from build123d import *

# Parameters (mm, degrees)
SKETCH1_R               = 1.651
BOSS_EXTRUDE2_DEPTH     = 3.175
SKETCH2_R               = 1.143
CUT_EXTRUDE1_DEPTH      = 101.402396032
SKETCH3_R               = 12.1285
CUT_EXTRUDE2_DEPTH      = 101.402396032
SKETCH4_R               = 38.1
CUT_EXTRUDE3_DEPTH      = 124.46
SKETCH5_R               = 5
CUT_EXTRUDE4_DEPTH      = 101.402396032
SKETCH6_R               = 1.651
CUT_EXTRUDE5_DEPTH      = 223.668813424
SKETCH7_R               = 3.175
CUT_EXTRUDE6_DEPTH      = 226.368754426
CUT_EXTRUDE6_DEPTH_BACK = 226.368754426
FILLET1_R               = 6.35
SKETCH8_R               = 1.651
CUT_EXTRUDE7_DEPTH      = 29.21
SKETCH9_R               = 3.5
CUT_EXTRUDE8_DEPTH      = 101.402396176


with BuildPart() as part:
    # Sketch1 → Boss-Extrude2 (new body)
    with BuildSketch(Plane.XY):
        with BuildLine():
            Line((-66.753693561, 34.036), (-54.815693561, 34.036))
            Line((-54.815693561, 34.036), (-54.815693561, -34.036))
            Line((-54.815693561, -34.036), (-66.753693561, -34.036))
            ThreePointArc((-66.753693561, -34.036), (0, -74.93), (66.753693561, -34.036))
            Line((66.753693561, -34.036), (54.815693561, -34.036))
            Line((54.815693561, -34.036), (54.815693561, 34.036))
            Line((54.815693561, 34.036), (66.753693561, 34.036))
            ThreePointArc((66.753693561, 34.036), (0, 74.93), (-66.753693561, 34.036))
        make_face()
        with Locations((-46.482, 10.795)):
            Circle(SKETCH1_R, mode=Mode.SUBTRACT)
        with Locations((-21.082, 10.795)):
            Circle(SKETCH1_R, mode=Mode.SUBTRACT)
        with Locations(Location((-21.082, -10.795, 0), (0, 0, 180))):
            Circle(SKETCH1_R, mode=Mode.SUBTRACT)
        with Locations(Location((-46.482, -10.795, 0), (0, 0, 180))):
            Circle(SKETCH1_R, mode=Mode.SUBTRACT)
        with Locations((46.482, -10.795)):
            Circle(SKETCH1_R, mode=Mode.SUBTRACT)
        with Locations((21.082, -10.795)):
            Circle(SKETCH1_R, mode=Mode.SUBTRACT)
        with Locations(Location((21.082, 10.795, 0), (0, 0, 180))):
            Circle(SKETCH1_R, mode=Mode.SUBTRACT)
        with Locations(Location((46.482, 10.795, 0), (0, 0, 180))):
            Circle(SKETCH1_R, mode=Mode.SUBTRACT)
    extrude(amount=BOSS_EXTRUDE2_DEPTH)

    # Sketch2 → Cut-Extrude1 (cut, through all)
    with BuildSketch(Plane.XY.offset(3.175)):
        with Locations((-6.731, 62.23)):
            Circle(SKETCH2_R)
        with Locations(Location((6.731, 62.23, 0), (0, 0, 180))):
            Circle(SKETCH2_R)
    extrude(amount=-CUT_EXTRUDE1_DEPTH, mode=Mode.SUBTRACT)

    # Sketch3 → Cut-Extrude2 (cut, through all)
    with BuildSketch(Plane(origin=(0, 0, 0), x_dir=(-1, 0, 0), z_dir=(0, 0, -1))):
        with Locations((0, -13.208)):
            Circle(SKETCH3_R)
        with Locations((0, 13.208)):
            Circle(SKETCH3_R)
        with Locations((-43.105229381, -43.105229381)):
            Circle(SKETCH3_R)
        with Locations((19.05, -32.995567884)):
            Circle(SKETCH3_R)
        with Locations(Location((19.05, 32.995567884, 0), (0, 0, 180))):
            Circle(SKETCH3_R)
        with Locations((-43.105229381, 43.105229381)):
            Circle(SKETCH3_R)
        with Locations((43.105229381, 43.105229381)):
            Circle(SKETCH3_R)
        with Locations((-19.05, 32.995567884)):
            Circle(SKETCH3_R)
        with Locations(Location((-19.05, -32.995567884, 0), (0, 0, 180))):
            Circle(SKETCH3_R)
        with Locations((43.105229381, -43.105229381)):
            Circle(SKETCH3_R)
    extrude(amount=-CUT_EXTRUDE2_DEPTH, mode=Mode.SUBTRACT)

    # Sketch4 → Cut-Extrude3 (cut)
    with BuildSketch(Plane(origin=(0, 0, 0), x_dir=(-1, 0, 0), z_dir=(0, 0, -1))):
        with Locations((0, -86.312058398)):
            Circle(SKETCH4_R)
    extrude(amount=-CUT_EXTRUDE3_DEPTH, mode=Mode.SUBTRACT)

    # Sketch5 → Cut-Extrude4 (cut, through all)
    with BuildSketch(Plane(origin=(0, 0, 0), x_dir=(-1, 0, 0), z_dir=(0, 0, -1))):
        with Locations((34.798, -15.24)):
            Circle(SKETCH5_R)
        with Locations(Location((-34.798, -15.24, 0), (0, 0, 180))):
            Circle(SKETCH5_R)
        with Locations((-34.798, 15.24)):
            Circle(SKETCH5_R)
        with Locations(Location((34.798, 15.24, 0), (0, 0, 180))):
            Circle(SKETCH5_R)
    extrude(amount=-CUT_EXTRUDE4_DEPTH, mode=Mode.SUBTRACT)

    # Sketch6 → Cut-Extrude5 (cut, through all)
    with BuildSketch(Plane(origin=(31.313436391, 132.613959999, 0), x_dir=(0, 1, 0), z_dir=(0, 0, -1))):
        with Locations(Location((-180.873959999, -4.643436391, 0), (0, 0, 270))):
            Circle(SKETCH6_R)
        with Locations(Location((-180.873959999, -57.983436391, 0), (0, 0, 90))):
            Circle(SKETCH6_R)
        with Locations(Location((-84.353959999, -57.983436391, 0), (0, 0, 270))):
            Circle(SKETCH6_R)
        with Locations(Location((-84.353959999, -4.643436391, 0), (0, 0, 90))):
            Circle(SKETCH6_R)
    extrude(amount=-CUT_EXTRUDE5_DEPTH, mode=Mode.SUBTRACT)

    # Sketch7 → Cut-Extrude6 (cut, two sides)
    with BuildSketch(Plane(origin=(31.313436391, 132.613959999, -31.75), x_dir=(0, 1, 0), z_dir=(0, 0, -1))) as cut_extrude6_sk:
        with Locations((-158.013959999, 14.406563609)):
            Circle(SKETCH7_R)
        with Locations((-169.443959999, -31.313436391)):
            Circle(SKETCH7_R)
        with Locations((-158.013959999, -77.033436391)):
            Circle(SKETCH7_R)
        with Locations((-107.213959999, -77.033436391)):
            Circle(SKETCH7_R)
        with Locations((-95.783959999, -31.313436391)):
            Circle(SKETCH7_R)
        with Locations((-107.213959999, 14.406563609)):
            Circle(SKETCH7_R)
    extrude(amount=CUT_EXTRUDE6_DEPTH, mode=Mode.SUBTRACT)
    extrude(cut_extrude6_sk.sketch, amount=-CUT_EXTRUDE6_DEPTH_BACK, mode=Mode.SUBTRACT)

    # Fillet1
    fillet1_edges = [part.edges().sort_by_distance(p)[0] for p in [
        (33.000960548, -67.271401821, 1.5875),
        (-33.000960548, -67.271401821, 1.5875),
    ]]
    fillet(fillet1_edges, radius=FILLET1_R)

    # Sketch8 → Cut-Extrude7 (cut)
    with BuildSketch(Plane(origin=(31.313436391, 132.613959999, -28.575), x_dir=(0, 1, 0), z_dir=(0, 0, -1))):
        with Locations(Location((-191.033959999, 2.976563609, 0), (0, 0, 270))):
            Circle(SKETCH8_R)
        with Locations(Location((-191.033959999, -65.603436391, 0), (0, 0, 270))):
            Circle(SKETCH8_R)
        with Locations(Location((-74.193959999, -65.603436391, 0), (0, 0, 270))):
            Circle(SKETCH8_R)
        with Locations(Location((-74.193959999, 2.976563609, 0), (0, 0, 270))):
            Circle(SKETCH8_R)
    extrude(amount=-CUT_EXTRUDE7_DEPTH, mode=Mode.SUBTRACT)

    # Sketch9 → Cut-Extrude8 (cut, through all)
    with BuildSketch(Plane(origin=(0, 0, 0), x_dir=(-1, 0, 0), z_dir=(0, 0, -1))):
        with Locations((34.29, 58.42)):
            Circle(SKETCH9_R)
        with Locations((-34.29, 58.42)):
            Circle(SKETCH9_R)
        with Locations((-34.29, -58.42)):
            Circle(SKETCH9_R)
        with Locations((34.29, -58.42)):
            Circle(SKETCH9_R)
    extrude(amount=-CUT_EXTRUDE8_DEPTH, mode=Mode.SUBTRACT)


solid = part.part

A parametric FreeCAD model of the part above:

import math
import FreeCAD as App
import Part
import Sketcher
Q = App.Units.Quantity


def edges_at(feature, points):
    """Names of the edges that pass closest to the given points."""
    edges = feature.Shape.Edges
    near = lambda p: min(range(len(edges)), key=lambda i: edges[i].distToShape(Part.Vertex(*p))[0])
    return sorted({f"Edge{near(p) + 1}" for p in points})

doc = App.newDocument("Part")
body = doc.addObject("PartDesign::Body", "Body")

# Sketch on XY plane
sketch1 = body.newObject("Sketcher::SketchObject", "Sketch")
sketch1.AttachmentSupport = (doc.getObject("XY_Plane"), [""])
sketch1.MapMode = "FlatFace"
sketch1.addGeometry([
    Part.LineSegment(App.Vector(-66.8, 34, 0), App.Vector(-54.8, 34, 0)),  # 0
    Part.LineSegment(App.Vector(-54.8, 34, 0), App.Vector(-54.8, -34, 0)),  # 1
    Part.LineSegment(App.Vector(-54.8, -34, 0), App.Vector(-66.8, -34, 0)),  # 2
    Part.ArcOfCircle(Part.Circle(App.Vector(0, 0, 0), App.Vector(0, 0, 1), 74.9), math.radians(-153), math.radians(-27)),  # 3
    Part.LineSegment(App.Vector(66.8, -34, 0), App.Vector(54.8, -34, 0)),  # 4
    Part.LineSegment(App.Vector(54.8, -34, 0), App.Vector(54.8, 34, 0)),  # 5
    Part.LineSegment(App.Vector(54.8, 34, 0), App.Vector(66.8, 34, 0)),  # 6
    Part.ArcOfCircle(Part.Circle(App.Vector(0, 0, 0), App.Vector(0, 0, 1), 74.9), math.radians(27), math.radians(153)),  # 7
    Part.Circle(App.Vector(-46.5, -10.8, 0), App.Vector(0, 0, 1), 1.7),  # 8
    Part.Circle(App.Vector(-21.1, -10.8, 0), App.Vector(0, 0, 1), 1.7),  # 9
    Part.Circle(App.Vector(21.1, -10.8, 0), App.Vector(0, 0, 1), 1.7),  # 10
    Part.Circle(App.Vector(46.5, -10.8, 0), App.Vector(0, 0, 1), 1.7),  # 11
    Part.Circle(App.Vector(-46.5, 10.8, 0), App.Vector(0, 0, 1), 1.7),  # 12
    Part.Circle(App.Vector(-21.1, 10.8, 0), App.Vector(0, 0, 1), 1.7),  # 13
    Part.Circle(App.Vector(21.1, 10.8, 0), App.Vector(0, 0, 1), 1.7),  # 14
    Part.Circle(App.Vector(46.5, 10.8, 0), App.Vector(0, 0, 1), 1.7),  # 15
], False)
sketch1.addConstraint([
    Sketcher.Constraint("Coincident", 0, 2, 1, 1),
    Sketcher.Constraint("Coincident", 1, 2, 2, 1),
    Sketcher.Constraint("Coincident", 2, 2, 3, 1),
    Sketcher.Constraint("Coincident", 3, 2, 4, 1),
    Sketcher.Constraint("Coincident", 4, 2, 5, 1),
    Sketcher.Constraint("Coincident", 5, 2, 6, 1),
    Sketcher.Constraint("Coincident", 6, 2, 7, 1),
    Sketcher.Constraint("Coincident", 7, 2, 0, 1),
    Sketcher.Constraint("Horizontal", 0),
    Sketcher.Constraint("Vertical", 1),
    Sketcher.Constraint("Horizontal", 2),
    Sketcher.Constraint("Horizontal", 4),
    Sketcher.Constraint("Vertical", 5),
    Sketcher.Constraint("Horizontal", 6),
    Sketcher.Constraint("Coincident", 3, 3, -1, 1),
    Sketcher.Constraint("Coincident", 7, 3, -1, 1),
    Sketcher.Constraint("Equal", 3, 7),
    Sketcher.Constraint("Equal", 8, 9),
    Sketcher.Constraint("Equal", 9, 10),
    Sketcher.Constraint("Equal", 10, 11),
    Sketcher.Constraint("Equal", 11, 12),
    Sketcher.Constraint("Equal", 12, 13),
    Sketcher.Constraint("Equal", 13, 14),
    Sketcher.Constraint("Equal", 14, 15),
    Sketcher.Constraint("Symmetric", 11, 3, 12, 3, -1, 1),
    Sketcher.Constraint("Symmetric", 10, 3, 13, 3, -1, 1),
    Sketcher.Constraint("Symmetric", 9, 3, 14, 3, -1, 1),
    Sketcher.Constraint("Symmetric", 8, 3, 15, 3, -1, 1),
    Sketcher.Constraint("Symmetric", 0, 2, 4, 2, -1, 1),
    Sketcher.Constraint("Symmetric", 9, 3, 10, 3, -2),
    Sketcher.Constraint("Symmetric", 8, 3, 11, 3, -2),
    Sketcher.Constraint("Horizontal", 8, 3, 9, 3),
    Sketcher.Constraint("Horizontal", 2, 2, 3, 2),
    Sketcher.Constraint("Horizontal", 0, 2, 5, 2),
    Sketcher.Constraint("Diameter", 8, Q("0.13 in")),
    Sketcher.Constraint("Radius", 3, Q("2.95 in")),
    Sketcher.Constraint("DistanceX", 8, 3, 9, 3, Q("1 in")),
    Sketcher.Constraint("DistanceX", 0, 1, 0, 2, Q("0.47 in")),
    Sketcher.Constraint("DistanceY", 1, 2, 1, 1, Q("2.68 in")),
    Sketcher.Constraint("DistanceX", 8, 3, -1, 1, Q("1.83 in")),
    Sketcher.Constraint("DistanceY", 8, 3, 12, 3, Q("0.85 in")),
])
pad1 = body.newObject("PartDesign::Pad", "Pad")
pad1.Profile = sketch1
pad1.Length = Q("0.125 in")

# Sketch on XY plane
sketch2 = body.newObject("Sketcher::SketchObject", "Sketch001")
sketch2.AttachmentSupport = (doc.getObject("XY_Plane"), [""])
sketch2.MapMode = "FlatFace"
sketch2.AttachmentOffset = App.Placement(App.Vector(0, 0, 0.125 * 25.4), App.Rotation())
sketch2.addGeometry([
    Part.Circle(App.Vector(-6.7, 62.2, 0), App.Vector(0, 0, 1), 1.1),
    Part.Circle(App.Vector(6.7, 62.2, 0), App.Vector(0, 0, 1), 1.1),
], False)
sketch2.addConstraint([
    Sketcher.Constraint("Equal", 0, 1),
    Sketcher.Constraint("Symmetric", 0, 3, 1, 3, -2),
    Sketcher.Constraint("Diameter", 0, Q("0.09 in")),
    Sketcher.Constraint("DistanceY", -1, 1, 0, 3, Q("2.45 in")),
    Sketcher.Constraint("DistanceX", 0, 3, 1, 3, Q("0.53 in")),
])
pocket1 = body.newObject("PartDesign::Pocket", "Pocket")
pocket1.Profile = sketch2
pocket1.Type = "ThroughAll"

# Sketch on XY plane
sketch3 = body.newObject("Sketcher::SketchObject", "Sketch002")
sketch3.AttachmentSupport = (doc.getObject("XY_Plane"), [""])
sketch3.MapMode = "FlatFace"
sketch3.addGeometry([
    Part.Circle(App.Vector(0, -13, 0), App.Vector(0, 0, 1), 12),  # 0
    Part.Circle(App.Vector(0, 13, 0), App.Vector(0, 0, 1), 12),  # 1
    Part.Circle(App.Vector(43, -43, 0), App.Vector(0, 0, 1), 12),  # 2
    Part.Circle(App.Vector(-19, -33, 0), App.Vector(0, 0, 1), 12),  # 3
    Part.Circle(App.Vector(-19, 33, 0), App.Vector(0, 0, 1), 12),  # 4
    Part.Circle(App.Vector(43, 43, 0), App.Vector(0, 0, 1), 12),  # 5
    Part.Circle(App.Vector(-43, 43, 0), App.Vector(0, 0, 1), 12),  # 6
    Part.Circle(App.Vector(19, 33, 0), App.Vector(0, 0, 1), 12),  # 7
    Part.Circle(App.Vector(19, -33, 0), App.Vector(0, 0, 1), 12),  # 8
    Part.Circle(App.Vector(-43, -43, 0), App.Vector(0, 0, 1), 12),  # 9
], False)
sketch3.addConstraint([
    Sketcher.Constraint("Equal", 0, 1),
    Sketcher.Constraint("Equal", 1, 2),
    Sketcher.Constraint("Equal", 2, 3),
    Sketcher.Constraint("Equal", 3, 4),
    Sketcher.Constraint("Equal", 4, 5),
    Sketcher.Constraint("Equal", 5, 6),
    Sketcher.Constraint("Equal", 6, 7),
    Sketcher.Constraint("Equal", 7, 8),
    Sketcher.Constraint("Equal", 8, 9),
    Sketcher.Constraint("Symmetric", 0, 3, 1, 3, -1, 1),
    Sketcher.Constraint("Symmetric", 2, 3, 6, 3, -1, 1),
    Sketcher.Constraint("Symmetric", 3, 3, 7, 3, -1, 1),
    Sketcher.Constraint("Symmetric", 4, 3, 8, 3, -1, 1),
    Sketcher.Constraint("Symmetric", 5, 3, 9, 3, -1, 1),
    Sketcher.Constraint("Symmetric", 5, 3, 6, 3, -2),
    Sketcher.Constraint("Symmetric", 4, 3, 7, 3, -2),
    Sketcher.Constraint("PointOnObject", 0, 3, -2),
    Sketcher.Constraint("Diameter", 0, Q("0.955 in")),
    Sketcher.Constraint("DistanceX", 4, 3, 7, 3, Q("1.5 in")),
    Sketcher.Constraint("DistanceY", 0, 3, -1, 1, Q("0.52 in")),
    Sketcher.Constraint("DistanceX", -1, 1, 2, 3, 43.105229),
    Sketcher.Constraint("DistanceY", 2, 3, -1, 1, 43.105229),
    Sketcher.Constraint("DistanceY", 2, 3, 3, 3, 10.109661),
])
pocket2 = body.newObject("PartDesign::Pocket", "Pocket001")
pocket2.Profile = sketch3
pocket2.Type = "ThroughAll"
pocket2.Reversed = True

# Sketch on XY plane
sketch4 = body.newObject("Sketcher::SketchObject", "Sketch003")
sketch4.AttachmentSupport = (doc.getObject("XY_Plane"), [""])
sketch4.MapMode = "FlatFace"
sketch4.addGeometry(Part.Circle(App.Vector(0, -86, 0), App.Vector(0, 0, 1), 38), False)
sketch4.addConstraint([
    Sketcher.Constraint("PointOnObject", 0, 3, -2),
    Sketcher.Constraint("Diameter", 0, Q("3 in")),
    Sketcher.Constraint("DistanceY", 0, 3, -1, 1, 86.312058),
])
pocket3 = body.newObject("PartDesign::Pocket", "Pocket002")
pocket3.Profile = sketch4
pocket3.Length = Q("4.9 in")
pocket3.Reversed = True

# Sketch on XY plane
sketch5 = body.newObject("Sketcher::SketchObject", "Sketch004")
sketch5.AttachmentSupport = (doc.getObject("XY_Plane"), [""])
sketch5.MapMode = "FlatFace"
sketch5.addGeometry([
    Part.Circle(App.Vector(-35, -15, 0), App.Vector(0, 0, 1), 5),
    Part.Circle(App.Vector(35, -15, 0), App.Vector(0, 0, 1), 5),
    Part.Circle(App.Vector(35, 15, 0), App.Vector(0, 0, 1), 5),
    Part.Circle(App.Vector(-35, 15, 0), App.Vector(0, 0, 1), 5),
], False)
sketch5.addConstraint([
    Sketcher.Constraint("Equal", 0, 1),
    Sketcher.Constraint("Equal", 1, 2),
    Sketcher.Constraint("Equal", 2, 3),
    Sketcher.Constraint("Symmetric", 0, 3, 2, 3, -1, 1),
    Sketcher.Constraint("Symmetric", 1, 3, 3, 3, -1, 1),
    Sketcher.Constraint("Symmetric", 0, 3, 1, 3, -2),
    Sketcher.Constraint("DistanceY", 0, 3, -1, 1, Q("0.6 in")),
    Sketcher.Constraint("Diameter", 0, 10.0),
    Sketcher.Constraint("DistanceX", 0, 3, -1, 1, Q("1.37 in")),
])
pocket4 = body.newObject("PartDesign::Pocket", "Pocket003")
pocket4.Profile = sketch5
pocket4.Type = "ThroughAll"
pocket4.Reversed = True

# Sketch on XY plane
sketch6 = body.newObject("Sketcher::SketchObject", "Sketch005")
sketch6.AttachmentSupport = (doc.getObject("XY_Plane"), [""])
sketch6.MapMode = "FlatFace"
sketch6.addGeometry([
    Part.Circle(App.Vector(26.7, -48.3, 0), App.Vector(0, 0, 1), 1.7),
    Part.Circle(App.Vector(-26.7, -48.3, 0), App.Vector(0, 0, 1), 1.7),
    Part.Circle(App.Vector(-26.7, 48.3, 0), App.Vector(0, 0, 1), 1.7),
    Part.Circle(App.Vector(26.7, 48.3, 0), App.Vector(0, 0, 1), 1.7),
], False)
sketch6.addConstraint([
    Sketcher.Constraint("Equal", 0, 1),
    Sketcher.Constraint("Equal", 1, 2),
    Sketcher.Constraint("Equal", 2, 3),
    Sketcher.Constraint("Symmetric", 0, 3, 2, 3, -1, 1),
    Sketcher.Constraint("Symmetric", 1, 3, 3, 3, -1, 1),
    Sketcher.Constraint("Symmetric", 0, 3, 1, 3, -2),
    Sketcher.Constraint("Diameter", 0, Q("0.13 in")),
    Sketcher.Constraint("DistanceY", 0, 3, -1, 1, Q("1.9 in")),
    Sketcher.Constraint("DistanceX", 1, 3, 0, 3, Q("2.1 in")),
])
pocket5 = body.newObject("PartDesign::Pocket", "Pocket004")
pocket5.Profile = sketch6
pocket5.Type = "ThroughAll"
pocket5.Reversed = True

# Sketch on XY plane
sketch7 = body.newObject("Sketcher::SketchObject", "Sketch006")
sketch7.AttachmentSupport = (doc.getObject("XY_Plane"), [""])
sketch7.MapMode = "FlatFace"
sketch7.AttachmentOffset = App.Placement(App.Vector(0, 0, -1.25 * 25.4), App.Rotation())
sketch7.addGeometry([
    Part.Circle(App.Vector(45.7, -25.4, 0), App.Vector(0, 0, 1), 3.2),  # 0
    Part.Circle(App.Vector(0, -36.8, 0), App.Vector(0, 0, 1), 3.2),  # 1
    Part.Circle(App.Vector(-45.7, -25.4, 0), App.Vector(0, 0, 1), 3.2),  # 2
    Part.Circle(App.Vector(-45.7, 25.4, 0), App.Vector(0, 0, 1), 3.2),  # 3
    Part.Circle(App.Vector(0, 36.8, 0), App.Vector(0, 0, 1), 3.2),  # 4
    Part.Circle(App.Vector(45.7, 25.4, 0), App.Vector(0, 0, 1), 3.2),  # 5
], False)
sketch7.addConstraint([
    Sketcher.Constraint("Equal", 0, 1),
    Sketcher.Constraint("Equal", 1, 2),
    Sketcher.Constraint("Equal", 2, 3),
    Sketcher.Constraint("Equal", 3, 4),
    Sketcher.Constraint("Equal", 4, 5),
    Sketcher.Constraint("Symmetric", 0, 3, 3, 3, -1, 1),
    Sketcher.Constraint("Symmetric", 1, 3, 4, 3, -1, 1),
    Sketcher.Constraint("Symmetric", 2, 3, 5, 3, -1, 1),
    Sketcher.Constraint("Symmetric", 0, 3, 2, 3, -2),
    Sketcher.Constraint("PointOnObject", 1, 3, -2),
    Sketcher.Constraint("Diameter", 0, Q("0.25 in")),
    Sketcher.Constraint("DistanceY", 0, 3, -1, 1, Q("1 in")),
    Sketcher.Constraint("DistanceX", -1, 1, 0, 3, Q("1.8 in")),
    Sketcher.Constraint("DistanceY", 1, 3, 4, 3, Q("2.9 in")),
])
pocket6 = body.newObject("PartDesign::Pocket", "Pocket005")
pocket6.Profile = sketch7
pocket6.Type = "ThroughAll"
pocket6.Midplane = True
doc.recompute()

fillet = body.newObject("PartDesign::Fillet", "Fillet")
fillet.Base = (pocket6, edges_at(pocket6, [(33.001, -67.271, 1.587), (-33.001, -67.271, 1.587)]))
fillet.Radius = Q("0.25 in")

# Sketch on XY plane
sketch8 = body.newObject("Sketcher::SketchObject", "Sketch007")
sketch8.AttachmentSupport = (doc.getObject("XY_Plane"), [""])
sketch8.MapMode = "FlatFace"
sketch8.AttachmentOffset = App.Placement(App.Vector(0, 0, -1.125 * 25.4), App.Rotation())
sketch8.addGeometry([
    Part.Circle(App.Vector(34.3, -58.4, 0), App.Vector(0, 0, 1), 1.7),
    Part.Circle(App.Vector(-34.3, -58.4, 0), App.Vector(0, 0, 1), 1.7),
    Part.Circle(App.Vector(-34.3, 58.4, 0), App.Vector(0, 0, 1), 1.7),
    Part.Circle(App.Vector(34.3, 58.4, 0), App.Vector(0, 0, 1), 1.7),
], False)
sketch8.addConstraint([
    Sketcher.Constraint("Equal", 0, 1),
    Sketcher.Constraint("Equal", 1, 2),
    Sketcher.Constraint("Equal", 2, 3),
    Sketcher.Constraint("Symmetric", 0, 3, 2, 3, -1, 1),
    Sketcher.Constraint("Symmetric", 1, 3, 3, 3, -1, 1),
    Sketcher.Constraint("Symmetric", 0, 3, 1, 3, -2),
    Sketcher.Constraint("Diameter", 0, Q("0.13 in")),
    Sketcher.Constraint("DistanceY", 0, 3, -1, 1, Q("2.3 in")),
    Sketcher.Constraint("DistanceX", 1, 3, 0, 3, Q("2.7 in")),
])
pocket7 = body.newObject("PartDesign::Pocket", "Pocket006")
pocket7.Profile = sketch8
pocket7.Length = Q("1.15 in")
pocket7.Reversed = True

# Sketch on XY plane
sketch9 = body.newObject("Sketcher::SketchObject", "Sketch008")
sketch9.AttachmentSupport = (doc.getObject("XY_Plane"), [""])
sketch9.MapMode = "FlatFace"
sketch9.addGeometry([
    Part.Circle(App.Vector(-34.3, 58.4, 0), App.Vector(0, 0, 1), 3.5),
    Part.Circle(App.Vector(34.3, 58.4, 0), App.Vector(0, 0, 1), 3.5),
    Part.Circle(App.Vector(34.3, -58.4, 0), App.Vector(0, 0, 1), 3.5),
    Part.Circle(App.Vector(-34.3, -58.4, 0), App.Vector(0, 0, 1), 3.5),
], False)
sketch9.addConstraint([
    Sketcher.Constraint("Equal", 0, 1),
    Sketcher.Constraint("Equal", 1, 2),
    Sketcher.Constraint("Equal", 2, 3),
    Sketcher.Constraint("Symmetric", 0, 3, 2, 3, -1, 1),
    Sketcher.Constraint("Symmetric", 1, 3, 3, 3, -1, 1),
    Sketcher.Constraint("Symmetric", 0, 3, 1, 3, -2),
    Sketcher.Constraint("DistanceY", -1, 1, 0, 3, Q("2.3 in")),
    Sketcher.Constraint("DistanceX", 0, 3, 1, 3, Q("2.7 in")),
    Sketcher.Constraint("Diameter", 0, 7.0),
])
pocket8 = body.newObject("PartDesign::Pocket", "Pocket007")
pocket8.Profile = sketch9
pocket8.Type = "ThroughAll"
pocket8.Reversed = True

doc.recompute()
